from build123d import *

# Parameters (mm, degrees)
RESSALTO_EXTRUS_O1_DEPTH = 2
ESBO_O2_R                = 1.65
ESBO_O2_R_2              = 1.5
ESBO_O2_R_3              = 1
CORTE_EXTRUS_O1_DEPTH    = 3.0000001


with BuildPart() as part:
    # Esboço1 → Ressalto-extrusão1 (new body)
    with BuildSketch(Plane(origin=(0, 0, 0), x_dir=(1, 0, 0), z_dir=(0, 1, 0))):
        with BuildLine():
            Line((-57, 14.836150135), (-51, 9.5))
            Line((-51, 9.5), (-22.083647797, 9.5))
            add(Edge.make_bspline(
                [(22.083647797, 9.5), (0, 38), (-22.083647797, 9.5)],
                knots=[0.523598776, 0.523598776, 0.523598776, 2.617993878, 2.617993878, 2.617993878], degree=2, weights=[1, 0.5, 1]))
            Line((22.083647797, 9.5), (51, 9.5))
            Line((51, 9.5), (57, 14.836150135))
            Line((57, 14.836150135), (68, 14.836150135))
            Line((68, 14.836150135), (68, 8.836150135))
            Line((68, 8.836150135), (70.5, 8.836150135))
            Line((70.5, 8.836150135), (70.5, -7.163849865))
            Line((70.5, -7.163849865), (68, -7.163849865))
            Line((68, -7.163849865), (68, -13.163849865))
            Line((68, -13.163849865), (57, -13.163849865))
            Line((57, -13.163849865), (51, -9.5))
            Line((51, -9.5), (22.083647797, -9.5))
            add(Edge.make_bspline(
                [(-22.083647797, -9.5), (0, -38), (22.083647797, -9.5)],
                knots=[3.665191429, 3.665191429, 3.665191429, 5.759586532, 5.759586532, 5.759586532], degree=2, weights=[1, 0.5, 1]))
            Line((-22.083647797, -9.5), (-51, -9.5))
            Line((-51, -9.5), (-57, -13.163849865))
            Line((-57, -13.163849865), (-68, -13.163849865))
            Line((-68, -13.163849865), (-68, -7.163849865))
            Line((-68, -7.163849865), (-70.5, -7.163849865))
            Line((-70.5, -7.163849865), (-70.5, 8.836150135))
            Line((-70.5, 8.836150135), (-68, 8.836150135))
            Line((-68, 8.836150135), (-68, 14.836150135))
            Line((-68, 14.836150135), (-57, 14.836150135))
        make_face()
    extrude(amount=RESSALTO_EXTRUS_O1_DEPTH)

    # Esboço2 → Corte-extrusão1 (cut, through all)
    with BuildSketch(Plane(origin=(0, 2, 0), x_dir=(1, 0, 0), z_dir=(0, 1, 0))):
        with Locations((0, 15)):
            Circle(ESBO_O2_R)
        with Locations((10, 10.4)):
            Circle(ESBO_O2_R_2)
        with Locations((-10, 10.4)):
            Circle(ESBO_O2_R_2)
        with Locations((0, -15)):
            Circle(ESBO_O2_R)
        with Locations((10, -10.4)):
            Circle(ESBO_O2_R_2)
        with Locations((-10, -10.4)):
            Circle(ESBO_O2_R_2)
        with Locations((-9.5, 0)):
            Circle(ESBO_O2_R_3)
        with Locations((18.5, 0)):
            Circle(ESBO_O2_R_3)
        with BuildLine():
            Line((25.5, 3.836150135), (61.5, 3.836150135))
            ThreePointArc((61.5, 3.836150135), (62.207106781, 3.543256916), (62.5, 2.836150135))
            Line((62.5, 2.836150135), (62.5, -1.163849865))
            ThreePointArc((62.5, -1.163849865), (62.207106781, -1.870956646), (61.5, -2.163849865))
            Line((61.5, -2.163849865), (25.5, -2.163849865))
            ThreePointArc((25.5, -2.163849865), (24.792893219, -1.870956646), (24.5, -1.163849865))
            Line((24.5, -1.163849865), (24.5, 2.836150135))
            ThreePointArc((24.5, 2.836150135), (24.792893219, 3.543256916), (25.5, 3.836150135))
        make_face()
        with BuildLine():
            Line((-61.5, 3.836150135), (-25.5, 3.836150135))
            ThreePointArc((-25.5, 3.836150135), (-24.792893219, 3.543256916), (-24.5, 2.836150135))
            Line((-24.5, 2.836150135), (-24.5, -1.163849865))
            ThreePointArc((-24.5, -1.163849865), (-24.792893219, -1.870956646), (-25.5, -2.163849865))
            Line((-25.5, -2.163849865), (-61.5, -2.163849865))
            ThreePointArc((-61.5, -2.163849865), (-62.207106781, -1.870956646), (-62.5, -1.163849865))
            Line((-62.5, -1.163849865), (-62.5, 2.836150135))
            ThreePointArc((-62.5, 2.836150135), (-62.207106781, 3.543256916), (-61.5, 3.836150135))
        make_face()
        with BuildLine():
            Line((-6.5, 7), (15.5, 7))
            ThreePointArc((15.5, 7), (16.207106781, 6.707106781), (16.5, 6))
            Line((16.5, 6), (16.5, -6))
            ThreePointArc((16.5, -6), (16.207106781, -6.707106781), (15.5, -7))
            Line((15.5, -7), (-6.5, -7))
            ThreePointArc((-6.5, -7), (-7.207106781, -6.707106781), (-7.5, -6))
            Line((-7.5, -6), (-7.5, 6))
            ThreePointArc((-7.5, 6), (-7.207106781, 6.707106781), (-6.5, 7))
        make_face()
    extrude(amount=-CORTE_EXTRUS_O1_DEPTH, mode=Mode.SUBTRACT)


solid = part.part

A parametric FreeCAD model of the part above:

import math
import FreeCAD as App
import Part
import Sketcher

V = App.Vector
Q = App.Units.Quantity

doc = App.newDocument("Part")
body = doc.addObject("PartDesign::Body", "Body")

# Sketch on XZ plane
sketch1 = body.newObject("Sketcher::SketchObject", "Sketch")
sketch1.AttachmentSupport = (doc.getObject("XZ_Plane"), [""])
sketch1.MapMode = "FlatFace"
sketch1.addGeometry([
    Part.LineSegment(V(-51, -9.5, 0), V(-57, -14.83615, 0)),  # 0
    Part.LineSegment(V(-57, -14.83615, 0), V(-68, -14.83615, 0)),  # 1
    Part.LineSegment(V(-68, -14.83615, 0), V(-68, -8.83615, 0)),  # 2
    Part.LineSegment(V(-68, -8.83615, 0), V(-70.5, -8.83615, 0)),  # 3
    Part.LineSegment(V(-70.5, -8.83615, 0), V(-70.5, 7.16385, 0)),  # 4
    Part.LineSegment(V(-70.5, 7.16385, 0), V(-68, 7.16385, 0)),  # 5
    Part.LineSegment(V(-68, 7.16385, 0), V(-68, 13.16385, 0)),  # 6
    Part.LineSegment(V(-68, 13.16385, 0), V(-57, 13.16385, 0)),  # 7
    Part.LineSegment(V(-57, 13.16385, 0), V(-51, 9.5, 0)),  # 8
    Part.LineSegment(V(-51, 9.5, 0), V(-22.083648, 9.5, 0)),  # 9
    Part.BSplineCurve([V(-22.083648, 9.5, 0), V(0, 38, 0), V(22.083648, 9.5, 0)], [3, 3], [3.665191429, 5.759586532], False, 2, [1, 0.5, 1], False),  # 10
    Part.LineSegment(V(22.083648, 9.5, 0), V(51, 9.5, 0)),  # 11
    Part.LineSegment(V(51, 9.5, 0), V(57, 13.16385, 0)),  # 12
    Part.LineSegment(V(57, 13.16385, 0), V(68, 13.16385, 0)),  # 13
    Part.LineSegment(V(68, 13.16385, 0), V(68, 7.16385, 0)),  # 14
    Part.LineSegment(V(68, 7.16385, 0), V(70.5, 7.16385, 0)),  # 15
    Part.LineSegment(V(70.5, 7.16385, 0), V(70.5, -8.83615, 0)),  # 16
    Part.LineSegment(V(70.5, -8.83615, 0), V(68, -8.83615, 0)),  # 17
    Part.LineSegment(V(68, -8.83615, 0), V(68, -14.83615, 0)),  # 18
    Part.LineSegment(V(68, -14.83615, 0), V(57, -14.83615, 0)),  # 19
    Part.LineSegment(V(57, -14.83615, 0), V(51, -9.5, 0)),  # 20
    Part.LineSegment(V(51, -9.5, 0), V(22.083648, -9.5, 0)),  # 21
    Part.BSplineCurve([V(22.083648, -9.5, 0), V(0, -38, 0), V(-22.083648, -9.5, 0)], [3, 3], [0.523598776, 2.617993878], False, 2, [1, 0.5, 1], False),  # 22
    Part.LineSegment(V(-22.083648, -9.5, 0), V(-51, -9.5, 0)),  # 23
], False)
sketch1.addConstraint([
    Sketcher.Constraint("Block", 10),
    Sketcher.Constraint("Block", 22),
    Sketcher.Constraint("Coincident", 0, 2, 1, 1),
    Sketcher.Constraint("Coincident", 1, 2, 2, 1),
    Sketcher.Constraint("Coincident", 2, 2, 3, 1),
    Sketcher.Constraint("Coincident", 3, 2, 4, 1),
    Sketcher.Constraint("Coincident", 4, 2, 5, 1),
    Sketcher.Constraint("Coincident", 5, 2, 6, 1),
    Sketcher.Constraint("Coincident", 6, 2, 7, 1),
    Sketcher.Constraint("Coincident", 7, 2, 8, 1),
    Sketcher.Constraint("Coincident", 8, 2, 9, 1),
    Sketcher.Constraint("Coincident", 9, 2, 10, 1),
    Sketcher.Constraint("Coincident", 10, 2, 11, 1),
    Sketcher.Constraint("Coincident", 11, 2, 12, 1),
    Sketcher.Constraint("Coincident", 12, 2, 13, 1),
    Sketcher.Constraint("Coincident", 13, 2, 14, 1),
    Sketcher.Constraint("Coincident", 14, 2, 15, 1),
    Sketcher.Constraint("Coincident", 15, 2, 16, 1),
    Sketcher.Constraint("Coincident", 16, 2, 17, 1),
    Sketcher.Constraint("Coincident", 17, 2, 18, 1),
    Sketcher.Constraint("Coincident", 18, 2, 19, 1),
    Sketcher.Constraint("Coincident", 19, 2, 20, 1),
    Sketcher.Constraint("Coincident", 20, 2, 21, 1),
    Sketcher.Constraint("Coincident", 21, 2, 22, 1),
    Sketcher.Constraint("Coincident", 22, 2, 23, 1),
    Sketcher.Constraint("Coincident", 23, 2, 0, 1),
    Sketcher.Constraint("Horizontal", 1),
    Sketcher.Constraint("Vertical", 2),
    Sketcher.Constraint("Horizontal", 3),
    Sketcher.Constraint("Vertical", 4),
    Sketcher.Constraint("Horizontal", 5),
    Sketcher.Constraint("Vertical", 6),
    Sketcher.Constraint("Horizontal", 7),
    Sketcher.Constraint("Horizontal", 9),
    Sketcher.Constraint("Horizontal", 11),
    Sketcher.Constraint("Horizontal", 13),
    Sketcher.Constraint("Vertical", 14),
    Sketcher.Constraint("Horizontal", 15),
    Sketcher.Constraint("Vertical", 16),
    Sketcher.Constraint("Horizontal", 17),
    Sketcher.Constraint("Vertical", 18),
    Sketcher.Constraint("Horizontal", 19),
    Sketcher.Constraint("Horizontal", 21),
    Sketcher.Constraint("Horizontal", 23),
    Sketcher.Constraint("Symmetric", 7, 2, 12, 2, -2),
    Sketcher.Constraint("Symmetric", 5, 2, 14, 2, -2),
    Sketcher.Constraint("Symmetric", 3, 2, 16, 2, -2),
    Sketcher.Constraint("Symmetric", 1, 2, 18, 2, -2),
    Sketcher.Constraint("Vertical", 2, 2, 5, 2),
    Sketcher.Constraint("Vertical", 0, 2, 7, 2),
    Sketcher.Constraint("Vertical", 12, 2, 19, 2),
    Sketcher.Constraint("Vertical", 11, 2, 20, 2),
    Sketcher.Constraint("Vertical", 8, 2, 23, 2),
    Sketcher.Constraint("Equal", 9, 11),
    Sketcher.Constraint("Equal", 2, 6),
    Sketcher.Constraint("DistanceX", 1, 2, 1, 1, Q("11 mm")),
    Sketcher.Constraint("DistanceY", 2, 1, 2, 2, Q("6 mm")),
    Sketcher.Constraint("DistanceY", 4, 1, 4, 2, Q("16 mm")),
    Sketcher.Constraint("DistanceX", 3, 2, 3, 1, Q("2.5 mm")),
    Sketcher.Constraint("DistanceX", 0, 2, -1, 1, Q("57 mm")),
    Sketcher.Constraint("DistanceX", 8, 2, -1, 1, Q("51 mm")),
    Sketcher.Constraint("Distance", 0, Q("8.029601 mm")),
])
pad1 = body.newObject("PartDesign::Pad", "Pad")
pad1.Profile = sketch1
pad1.Length = 2
pad1.Reversed = True

# Sketch on XZ plane
sketch2 = body.newObject("Sketcher::SketchObject", "Sketch001")
sketch2.AttachmentSupport = (doc.getObject("XZ_Plane"), [""])
sketch2.MapMode = "FlatFace"
sketch2.AttachmentOffset = App.Placement(V(0, 0, -2), App.Rotation())
sketch2.addGeometry([
    Part.Circle(V(0, -15, 0), V(0, 0, 1), 1.65),  # 0
    Part.Circle(V(10, -10.4, 0), V(0, 0, 1), 1.5),  # 1
    Part.Circle(V(-10, -10.4, 0), V(0, 0, 1), 1.5),  # 2
    Part.Circle(V(0, 15, 0), V(0, 0, 1), 1.65),  # 3
    Part.Circle(V(10, 10.4, 0), V(0, 0, 1), 1.5),  # 4
    Part.Circle(V(-10, 10.4, 0), V(0, 0, 1), 1.5),  # 5
    Part.Circle(V(-9.5, 0, 0), V(0, 0, 1), 1),  # 6
    Part.Circle(V(18.5, 0, 0), V(0, 0, 1), 1),  # 7
    Part.LineSegment(V(61.5, -3.83615, 0), V(25.5, -3.83615, 0)),  # 8
    Part.ArcOfCircle(Part.Circle(V(25.5, -2.83615, 0), V(0, 0, 1), 1), math.radians(-180), math.radians(-90)),  # 9
    Part.LineSegment(V(24.5, -2.83615, 0), V(24.5, 1.16385, 0)),  # 10
    Part.ArcOfCircle(Part.Circle(V(25.5, 1.16385, 0), V(0, 0, 1), 1), math.radians(90), math.radians(180)),  # 11
    Part.LineSegment(V(25.5, 2.16385, 0), V(61.5, 2.16385, 0)),  # 12
    Part.ArcOfCircle(Part.Circle(V(61.5, 1.16385, 0), V(0, 0, 1), 1), math.radians(0), math.radians(90)),  # 13
    Part.LineSegment(V(62.5, 1.16385, 0), V(62.5, -2.83615, 0)),  # 14
    Part.ArcOfCircle(Part.Circle(V(61.5, -2.83615, 0), V(0, 0, 1), 1), math.radians(-90), math.radians(0)),  # 15
    Part.LineSegment(V(-25.5, -3.83615, 0), V(-61.5, -3.83615, 0)),  # 16
    Part.ArcOfCircle(Part.Circle(V(-61.5, -2.83615, 0), V(0, 0, 1), 1), math.radians(-180), math.radians(-90)),  # 17
    Part.LineSegment(V(-62.5, -2.83615, 0), V(-62.5, 1.16385, 0)),  # 18
    Part.ArcOfCircle(Part.Circle(V(-61.5, 1.16385, 0), V(0, 0, 1), 1), math.radians(90), math.radians(180)),  # 19
    Part.LineSegment(V(-61.5, 2.16385, 0), V(-25.5, 2.16385, 0)),  # 20
    Part.ArcOfCircle(Part.Circle(V(-25.5, 1.16385, 0), V(0, 0, 1), 1), math.radians(0), math.radians(90)),  # 21
    Part.LineSegment(V(-24.5, 1.16385, 0), V(-24.5, -2.83615, 0)),  # 22
    Part.ArcOfCircle(Part.Circle(V(-25.5, -2.83615, 0), V(0, 0, 1), 1), math.radians(-90), math.radians(0)),  # 23
    Part.LineSegment(V(15.5, -7, 0), V(-6.5, -7, 0)),  # 24
    Part.ArcOfCircle(Part.Circle(V(-6.5, -6, 0), V(0, 0, 1), 1), math.radians(-180), math.radians(-90)),  # 25
    Part.LineSegment(V(-7.5, -6, 0), V(-7.5, 6, 0)),  # 26
    Part.ArcOfCircle(Part.Circle(V(-6.5, 6, 0), V(0, 0, 1), 1), math.radians(90), math.radians(180)),  # 27
    Part.LineSegment(V(-6.5, 7, 0), V(15.5, 7, 0)),  # 28
    Part.ArcOfCircle(Part.Circle(V(15.5, 6, 0), V(0, 0, 1), 1), math.radians(0), math.radians(90)),  # 29
    Part.LineSegment(V(16.5, 6, 0), V(16.5, -6, 0)),  # 30
    Part.ArcOfCircle(Part.Circle(V(15.5, -6, 0), V(0, 0, 1), 1), math.radians(-90), math.radians(0)),  # 31
], False)
sketch2.addConstraint([
    Sketcher.Constraint("Tangent", 8, 2, 9, 2),
    Sketcher.Constraint("Tangent", 9, 1, 10, 1),
    Sketcher.Constraint("Tangent", 10, 2, 11, 2),
    Sketcher.Constraint("Tangent", 11, 1, 12, 1),
    Sketcher.Constraint("Tangent", 12, 2, 13, 2),
    Sketcher.Constraint("Tangent", 13, 1, 14, 1),
    Sketcher.Constraint("Tangent", 14, 2, 15, 2),
    Sketcher.Constraint("Tangent", 15, 1, 8, 1),
    Sketcher.Constraint("Tangent", 16, 2, 17, 2),
    Sketcher.Constraint("Tangent", 17, 1, 18, 1),
    Sketcher.Constraint("Tangent", 18, 2, 19, 2),
    Sketcher.Constraint("Tangent", 19, 1, 20, 1),
    Sketcher.Constraint("Tangent", 20, 2, 21, 2),
    Sketcher.Constraint("Tangent", 21, 1, 22, 1),
    Sketcher.Constraint("Tangent", 22, 2, 23, 2),
    Sketcher.Constraint("Tangent", 23, 1, 16, 1),
    Sketcher.Constraint("Tangent", 24, 2, 25, 2),
    Sketcher.Constraint("Tangent", 25, 1, 26, 1),
    Sketcher.Constraint("Tangent", 26, 2, 27, 2),
    Sketcher.Constraint("Tangent", 27, 1, 28, 1),
    Sketcher.Constraint("Tangent", 28, 2, 29, 2),
    Sketcher.Constraint("Tangent", 29, 1, 30, 1),
    Sketcher.Constraint("Tangent", 30, 2, 31, 2),
    Sketcher.Constraint("Tangent", 31, 1, 24, 1),
    Sketcher.Constraint("Horizontal", 8),
    Sketcher.Constraint("Vertical", 10),
    Sketcher.Constraint("Horizontal", 12),
    Sketcher.Constraint("Vertical", 14),
    Sketcher.Constraint("Horizontal", 16),
    Sketcher.Constraint("Vertical", 18),
    Sketcher.Constraint("Horizontal", 20),
    Sketcher.Constraint("Vertical", 22),
    Sketcher.Constraint("Horizontal", 24),
    Sketcher.Constraint("Vertical", 26),
    Sketcher.Constraint("Horizontal", 28),
    Sketcher.Constraint("Vertical", 30),
    Sketcher.Constraint("Equal", 1, 2),
    Sketcher.Constraint("Equal", 0, 3),
    Sketcher.Constraint("Equal", 2, 4),
    Sketcher.Constraint("Equal", 4, 5),
    Sketcher.Constraint("Equal", 6, 7),
    Sketcher.Constraint("Equal", 7, 9),
    Sketcher.Constraint("Equal", 9, 11),
    Sketcher.Constraint("Equal", 11, 13),
    Sketcher.Constraint("Equal", 13, 15),
    Sketcher.Constraint("Equal", 15, 17),
    Sketcher.Constraint("Equal", 17, 19),
    Sketcher.Constraint("Equal", 19, 21),
    Sketcher.Constraint("Equal", 21, 23),
    Sketcher.Constraint("Equal", 23, 25),
    Sketcher.Constraint("Equal", 25, 27),
    Sketcher.Constraint("Equal", 27, 29),
    Sketcher.Constraint("Equal", 29, 31),
    Sketcher.Constraint("Symmetric", 0, 3, 3, 3, -1, 1),
    Sketcher.Constraint("Symmetric", 2, 3, 4, 3, -1, 1),
    Sketcher.Constraint("Symmetric", 1, 3, 5, 3, -1, 1),
    Sketcher.Constraint("Symmetric", 1, 3, 2, 3, -2),
    Sketcher.Constraint("Symmetric", 15, 3, 17, 3, -2),
    Sketcher.Constraint("Symmetric", 11, 3, 21, 3, -2),
    Sketcher.Constraint("PointOnObject", 0, 3, -2),
    Sketcher.Constraint("PointOnObject", 6, 3, -1),
    Sketcher.Constraint("PointOnObject", 7, 3, -1),
    Sketcher.Constraint("Diameter", 1, Q("3 mm")),
    Sketcher.Constraint("Diameter", 6, Q("2 mm")),
    Sketcher.Constraint("Diameter", 0, Q("3.3 mm")),
    Sketcher.Constraint("DistanceX", 8, 2, 8, 1, Q("36 mm")),
    Sketcher.Constraint("DistanceX", 24, 2, 24, 1, Q("22 mm")),
    Sketcher.Constraint("DistanceY", 10, 1, 10, 2, Q("4 mm")),
    Sketcher.Constraint("DistanceY", 26, 1, 26, 2, Q("12 mm")),
    Sketcher.Constraint("DistanceY", 0, 3, -1, 1, Q("15 mm")),
    Sketcher.Constraint("DistanceX", -1, 1, 1, 3, Q("10 mm")),
    Sketcher.Constraint("DistanceY", 25, 3, -1, 1, Q("6 mm")),
    Sketcher.Constraint("DistanceX", 6, 3, 7, 3, Q("28 mm")),
    Sketcher.Constraint("DistanceX", 7, 3, 9, 3, Q("7 mm")),
    Sketcher.Constraint("DistanceX", 17, 3, 6, 3, Q("52 mm")),
    Sketcher.Constraint("DistanceX", 6, 3, 25, 3, Q("3 mm")),
    Sketcher.Constraint("DistanceY", 1, 3, -1, 1, Q("10.4 mm")),
    Sketcher.Constraint("DistanceY", 9, 3, -1, 1, Q("2.83615 mm")),
])
pocket1 = body.newObject("PartDesign::Pocket", "Pocket")
pocket1.Profile = sketch2
pocket1.Type = "ThroughAll"
pocket1.Reversed = True

doc.recompute()
